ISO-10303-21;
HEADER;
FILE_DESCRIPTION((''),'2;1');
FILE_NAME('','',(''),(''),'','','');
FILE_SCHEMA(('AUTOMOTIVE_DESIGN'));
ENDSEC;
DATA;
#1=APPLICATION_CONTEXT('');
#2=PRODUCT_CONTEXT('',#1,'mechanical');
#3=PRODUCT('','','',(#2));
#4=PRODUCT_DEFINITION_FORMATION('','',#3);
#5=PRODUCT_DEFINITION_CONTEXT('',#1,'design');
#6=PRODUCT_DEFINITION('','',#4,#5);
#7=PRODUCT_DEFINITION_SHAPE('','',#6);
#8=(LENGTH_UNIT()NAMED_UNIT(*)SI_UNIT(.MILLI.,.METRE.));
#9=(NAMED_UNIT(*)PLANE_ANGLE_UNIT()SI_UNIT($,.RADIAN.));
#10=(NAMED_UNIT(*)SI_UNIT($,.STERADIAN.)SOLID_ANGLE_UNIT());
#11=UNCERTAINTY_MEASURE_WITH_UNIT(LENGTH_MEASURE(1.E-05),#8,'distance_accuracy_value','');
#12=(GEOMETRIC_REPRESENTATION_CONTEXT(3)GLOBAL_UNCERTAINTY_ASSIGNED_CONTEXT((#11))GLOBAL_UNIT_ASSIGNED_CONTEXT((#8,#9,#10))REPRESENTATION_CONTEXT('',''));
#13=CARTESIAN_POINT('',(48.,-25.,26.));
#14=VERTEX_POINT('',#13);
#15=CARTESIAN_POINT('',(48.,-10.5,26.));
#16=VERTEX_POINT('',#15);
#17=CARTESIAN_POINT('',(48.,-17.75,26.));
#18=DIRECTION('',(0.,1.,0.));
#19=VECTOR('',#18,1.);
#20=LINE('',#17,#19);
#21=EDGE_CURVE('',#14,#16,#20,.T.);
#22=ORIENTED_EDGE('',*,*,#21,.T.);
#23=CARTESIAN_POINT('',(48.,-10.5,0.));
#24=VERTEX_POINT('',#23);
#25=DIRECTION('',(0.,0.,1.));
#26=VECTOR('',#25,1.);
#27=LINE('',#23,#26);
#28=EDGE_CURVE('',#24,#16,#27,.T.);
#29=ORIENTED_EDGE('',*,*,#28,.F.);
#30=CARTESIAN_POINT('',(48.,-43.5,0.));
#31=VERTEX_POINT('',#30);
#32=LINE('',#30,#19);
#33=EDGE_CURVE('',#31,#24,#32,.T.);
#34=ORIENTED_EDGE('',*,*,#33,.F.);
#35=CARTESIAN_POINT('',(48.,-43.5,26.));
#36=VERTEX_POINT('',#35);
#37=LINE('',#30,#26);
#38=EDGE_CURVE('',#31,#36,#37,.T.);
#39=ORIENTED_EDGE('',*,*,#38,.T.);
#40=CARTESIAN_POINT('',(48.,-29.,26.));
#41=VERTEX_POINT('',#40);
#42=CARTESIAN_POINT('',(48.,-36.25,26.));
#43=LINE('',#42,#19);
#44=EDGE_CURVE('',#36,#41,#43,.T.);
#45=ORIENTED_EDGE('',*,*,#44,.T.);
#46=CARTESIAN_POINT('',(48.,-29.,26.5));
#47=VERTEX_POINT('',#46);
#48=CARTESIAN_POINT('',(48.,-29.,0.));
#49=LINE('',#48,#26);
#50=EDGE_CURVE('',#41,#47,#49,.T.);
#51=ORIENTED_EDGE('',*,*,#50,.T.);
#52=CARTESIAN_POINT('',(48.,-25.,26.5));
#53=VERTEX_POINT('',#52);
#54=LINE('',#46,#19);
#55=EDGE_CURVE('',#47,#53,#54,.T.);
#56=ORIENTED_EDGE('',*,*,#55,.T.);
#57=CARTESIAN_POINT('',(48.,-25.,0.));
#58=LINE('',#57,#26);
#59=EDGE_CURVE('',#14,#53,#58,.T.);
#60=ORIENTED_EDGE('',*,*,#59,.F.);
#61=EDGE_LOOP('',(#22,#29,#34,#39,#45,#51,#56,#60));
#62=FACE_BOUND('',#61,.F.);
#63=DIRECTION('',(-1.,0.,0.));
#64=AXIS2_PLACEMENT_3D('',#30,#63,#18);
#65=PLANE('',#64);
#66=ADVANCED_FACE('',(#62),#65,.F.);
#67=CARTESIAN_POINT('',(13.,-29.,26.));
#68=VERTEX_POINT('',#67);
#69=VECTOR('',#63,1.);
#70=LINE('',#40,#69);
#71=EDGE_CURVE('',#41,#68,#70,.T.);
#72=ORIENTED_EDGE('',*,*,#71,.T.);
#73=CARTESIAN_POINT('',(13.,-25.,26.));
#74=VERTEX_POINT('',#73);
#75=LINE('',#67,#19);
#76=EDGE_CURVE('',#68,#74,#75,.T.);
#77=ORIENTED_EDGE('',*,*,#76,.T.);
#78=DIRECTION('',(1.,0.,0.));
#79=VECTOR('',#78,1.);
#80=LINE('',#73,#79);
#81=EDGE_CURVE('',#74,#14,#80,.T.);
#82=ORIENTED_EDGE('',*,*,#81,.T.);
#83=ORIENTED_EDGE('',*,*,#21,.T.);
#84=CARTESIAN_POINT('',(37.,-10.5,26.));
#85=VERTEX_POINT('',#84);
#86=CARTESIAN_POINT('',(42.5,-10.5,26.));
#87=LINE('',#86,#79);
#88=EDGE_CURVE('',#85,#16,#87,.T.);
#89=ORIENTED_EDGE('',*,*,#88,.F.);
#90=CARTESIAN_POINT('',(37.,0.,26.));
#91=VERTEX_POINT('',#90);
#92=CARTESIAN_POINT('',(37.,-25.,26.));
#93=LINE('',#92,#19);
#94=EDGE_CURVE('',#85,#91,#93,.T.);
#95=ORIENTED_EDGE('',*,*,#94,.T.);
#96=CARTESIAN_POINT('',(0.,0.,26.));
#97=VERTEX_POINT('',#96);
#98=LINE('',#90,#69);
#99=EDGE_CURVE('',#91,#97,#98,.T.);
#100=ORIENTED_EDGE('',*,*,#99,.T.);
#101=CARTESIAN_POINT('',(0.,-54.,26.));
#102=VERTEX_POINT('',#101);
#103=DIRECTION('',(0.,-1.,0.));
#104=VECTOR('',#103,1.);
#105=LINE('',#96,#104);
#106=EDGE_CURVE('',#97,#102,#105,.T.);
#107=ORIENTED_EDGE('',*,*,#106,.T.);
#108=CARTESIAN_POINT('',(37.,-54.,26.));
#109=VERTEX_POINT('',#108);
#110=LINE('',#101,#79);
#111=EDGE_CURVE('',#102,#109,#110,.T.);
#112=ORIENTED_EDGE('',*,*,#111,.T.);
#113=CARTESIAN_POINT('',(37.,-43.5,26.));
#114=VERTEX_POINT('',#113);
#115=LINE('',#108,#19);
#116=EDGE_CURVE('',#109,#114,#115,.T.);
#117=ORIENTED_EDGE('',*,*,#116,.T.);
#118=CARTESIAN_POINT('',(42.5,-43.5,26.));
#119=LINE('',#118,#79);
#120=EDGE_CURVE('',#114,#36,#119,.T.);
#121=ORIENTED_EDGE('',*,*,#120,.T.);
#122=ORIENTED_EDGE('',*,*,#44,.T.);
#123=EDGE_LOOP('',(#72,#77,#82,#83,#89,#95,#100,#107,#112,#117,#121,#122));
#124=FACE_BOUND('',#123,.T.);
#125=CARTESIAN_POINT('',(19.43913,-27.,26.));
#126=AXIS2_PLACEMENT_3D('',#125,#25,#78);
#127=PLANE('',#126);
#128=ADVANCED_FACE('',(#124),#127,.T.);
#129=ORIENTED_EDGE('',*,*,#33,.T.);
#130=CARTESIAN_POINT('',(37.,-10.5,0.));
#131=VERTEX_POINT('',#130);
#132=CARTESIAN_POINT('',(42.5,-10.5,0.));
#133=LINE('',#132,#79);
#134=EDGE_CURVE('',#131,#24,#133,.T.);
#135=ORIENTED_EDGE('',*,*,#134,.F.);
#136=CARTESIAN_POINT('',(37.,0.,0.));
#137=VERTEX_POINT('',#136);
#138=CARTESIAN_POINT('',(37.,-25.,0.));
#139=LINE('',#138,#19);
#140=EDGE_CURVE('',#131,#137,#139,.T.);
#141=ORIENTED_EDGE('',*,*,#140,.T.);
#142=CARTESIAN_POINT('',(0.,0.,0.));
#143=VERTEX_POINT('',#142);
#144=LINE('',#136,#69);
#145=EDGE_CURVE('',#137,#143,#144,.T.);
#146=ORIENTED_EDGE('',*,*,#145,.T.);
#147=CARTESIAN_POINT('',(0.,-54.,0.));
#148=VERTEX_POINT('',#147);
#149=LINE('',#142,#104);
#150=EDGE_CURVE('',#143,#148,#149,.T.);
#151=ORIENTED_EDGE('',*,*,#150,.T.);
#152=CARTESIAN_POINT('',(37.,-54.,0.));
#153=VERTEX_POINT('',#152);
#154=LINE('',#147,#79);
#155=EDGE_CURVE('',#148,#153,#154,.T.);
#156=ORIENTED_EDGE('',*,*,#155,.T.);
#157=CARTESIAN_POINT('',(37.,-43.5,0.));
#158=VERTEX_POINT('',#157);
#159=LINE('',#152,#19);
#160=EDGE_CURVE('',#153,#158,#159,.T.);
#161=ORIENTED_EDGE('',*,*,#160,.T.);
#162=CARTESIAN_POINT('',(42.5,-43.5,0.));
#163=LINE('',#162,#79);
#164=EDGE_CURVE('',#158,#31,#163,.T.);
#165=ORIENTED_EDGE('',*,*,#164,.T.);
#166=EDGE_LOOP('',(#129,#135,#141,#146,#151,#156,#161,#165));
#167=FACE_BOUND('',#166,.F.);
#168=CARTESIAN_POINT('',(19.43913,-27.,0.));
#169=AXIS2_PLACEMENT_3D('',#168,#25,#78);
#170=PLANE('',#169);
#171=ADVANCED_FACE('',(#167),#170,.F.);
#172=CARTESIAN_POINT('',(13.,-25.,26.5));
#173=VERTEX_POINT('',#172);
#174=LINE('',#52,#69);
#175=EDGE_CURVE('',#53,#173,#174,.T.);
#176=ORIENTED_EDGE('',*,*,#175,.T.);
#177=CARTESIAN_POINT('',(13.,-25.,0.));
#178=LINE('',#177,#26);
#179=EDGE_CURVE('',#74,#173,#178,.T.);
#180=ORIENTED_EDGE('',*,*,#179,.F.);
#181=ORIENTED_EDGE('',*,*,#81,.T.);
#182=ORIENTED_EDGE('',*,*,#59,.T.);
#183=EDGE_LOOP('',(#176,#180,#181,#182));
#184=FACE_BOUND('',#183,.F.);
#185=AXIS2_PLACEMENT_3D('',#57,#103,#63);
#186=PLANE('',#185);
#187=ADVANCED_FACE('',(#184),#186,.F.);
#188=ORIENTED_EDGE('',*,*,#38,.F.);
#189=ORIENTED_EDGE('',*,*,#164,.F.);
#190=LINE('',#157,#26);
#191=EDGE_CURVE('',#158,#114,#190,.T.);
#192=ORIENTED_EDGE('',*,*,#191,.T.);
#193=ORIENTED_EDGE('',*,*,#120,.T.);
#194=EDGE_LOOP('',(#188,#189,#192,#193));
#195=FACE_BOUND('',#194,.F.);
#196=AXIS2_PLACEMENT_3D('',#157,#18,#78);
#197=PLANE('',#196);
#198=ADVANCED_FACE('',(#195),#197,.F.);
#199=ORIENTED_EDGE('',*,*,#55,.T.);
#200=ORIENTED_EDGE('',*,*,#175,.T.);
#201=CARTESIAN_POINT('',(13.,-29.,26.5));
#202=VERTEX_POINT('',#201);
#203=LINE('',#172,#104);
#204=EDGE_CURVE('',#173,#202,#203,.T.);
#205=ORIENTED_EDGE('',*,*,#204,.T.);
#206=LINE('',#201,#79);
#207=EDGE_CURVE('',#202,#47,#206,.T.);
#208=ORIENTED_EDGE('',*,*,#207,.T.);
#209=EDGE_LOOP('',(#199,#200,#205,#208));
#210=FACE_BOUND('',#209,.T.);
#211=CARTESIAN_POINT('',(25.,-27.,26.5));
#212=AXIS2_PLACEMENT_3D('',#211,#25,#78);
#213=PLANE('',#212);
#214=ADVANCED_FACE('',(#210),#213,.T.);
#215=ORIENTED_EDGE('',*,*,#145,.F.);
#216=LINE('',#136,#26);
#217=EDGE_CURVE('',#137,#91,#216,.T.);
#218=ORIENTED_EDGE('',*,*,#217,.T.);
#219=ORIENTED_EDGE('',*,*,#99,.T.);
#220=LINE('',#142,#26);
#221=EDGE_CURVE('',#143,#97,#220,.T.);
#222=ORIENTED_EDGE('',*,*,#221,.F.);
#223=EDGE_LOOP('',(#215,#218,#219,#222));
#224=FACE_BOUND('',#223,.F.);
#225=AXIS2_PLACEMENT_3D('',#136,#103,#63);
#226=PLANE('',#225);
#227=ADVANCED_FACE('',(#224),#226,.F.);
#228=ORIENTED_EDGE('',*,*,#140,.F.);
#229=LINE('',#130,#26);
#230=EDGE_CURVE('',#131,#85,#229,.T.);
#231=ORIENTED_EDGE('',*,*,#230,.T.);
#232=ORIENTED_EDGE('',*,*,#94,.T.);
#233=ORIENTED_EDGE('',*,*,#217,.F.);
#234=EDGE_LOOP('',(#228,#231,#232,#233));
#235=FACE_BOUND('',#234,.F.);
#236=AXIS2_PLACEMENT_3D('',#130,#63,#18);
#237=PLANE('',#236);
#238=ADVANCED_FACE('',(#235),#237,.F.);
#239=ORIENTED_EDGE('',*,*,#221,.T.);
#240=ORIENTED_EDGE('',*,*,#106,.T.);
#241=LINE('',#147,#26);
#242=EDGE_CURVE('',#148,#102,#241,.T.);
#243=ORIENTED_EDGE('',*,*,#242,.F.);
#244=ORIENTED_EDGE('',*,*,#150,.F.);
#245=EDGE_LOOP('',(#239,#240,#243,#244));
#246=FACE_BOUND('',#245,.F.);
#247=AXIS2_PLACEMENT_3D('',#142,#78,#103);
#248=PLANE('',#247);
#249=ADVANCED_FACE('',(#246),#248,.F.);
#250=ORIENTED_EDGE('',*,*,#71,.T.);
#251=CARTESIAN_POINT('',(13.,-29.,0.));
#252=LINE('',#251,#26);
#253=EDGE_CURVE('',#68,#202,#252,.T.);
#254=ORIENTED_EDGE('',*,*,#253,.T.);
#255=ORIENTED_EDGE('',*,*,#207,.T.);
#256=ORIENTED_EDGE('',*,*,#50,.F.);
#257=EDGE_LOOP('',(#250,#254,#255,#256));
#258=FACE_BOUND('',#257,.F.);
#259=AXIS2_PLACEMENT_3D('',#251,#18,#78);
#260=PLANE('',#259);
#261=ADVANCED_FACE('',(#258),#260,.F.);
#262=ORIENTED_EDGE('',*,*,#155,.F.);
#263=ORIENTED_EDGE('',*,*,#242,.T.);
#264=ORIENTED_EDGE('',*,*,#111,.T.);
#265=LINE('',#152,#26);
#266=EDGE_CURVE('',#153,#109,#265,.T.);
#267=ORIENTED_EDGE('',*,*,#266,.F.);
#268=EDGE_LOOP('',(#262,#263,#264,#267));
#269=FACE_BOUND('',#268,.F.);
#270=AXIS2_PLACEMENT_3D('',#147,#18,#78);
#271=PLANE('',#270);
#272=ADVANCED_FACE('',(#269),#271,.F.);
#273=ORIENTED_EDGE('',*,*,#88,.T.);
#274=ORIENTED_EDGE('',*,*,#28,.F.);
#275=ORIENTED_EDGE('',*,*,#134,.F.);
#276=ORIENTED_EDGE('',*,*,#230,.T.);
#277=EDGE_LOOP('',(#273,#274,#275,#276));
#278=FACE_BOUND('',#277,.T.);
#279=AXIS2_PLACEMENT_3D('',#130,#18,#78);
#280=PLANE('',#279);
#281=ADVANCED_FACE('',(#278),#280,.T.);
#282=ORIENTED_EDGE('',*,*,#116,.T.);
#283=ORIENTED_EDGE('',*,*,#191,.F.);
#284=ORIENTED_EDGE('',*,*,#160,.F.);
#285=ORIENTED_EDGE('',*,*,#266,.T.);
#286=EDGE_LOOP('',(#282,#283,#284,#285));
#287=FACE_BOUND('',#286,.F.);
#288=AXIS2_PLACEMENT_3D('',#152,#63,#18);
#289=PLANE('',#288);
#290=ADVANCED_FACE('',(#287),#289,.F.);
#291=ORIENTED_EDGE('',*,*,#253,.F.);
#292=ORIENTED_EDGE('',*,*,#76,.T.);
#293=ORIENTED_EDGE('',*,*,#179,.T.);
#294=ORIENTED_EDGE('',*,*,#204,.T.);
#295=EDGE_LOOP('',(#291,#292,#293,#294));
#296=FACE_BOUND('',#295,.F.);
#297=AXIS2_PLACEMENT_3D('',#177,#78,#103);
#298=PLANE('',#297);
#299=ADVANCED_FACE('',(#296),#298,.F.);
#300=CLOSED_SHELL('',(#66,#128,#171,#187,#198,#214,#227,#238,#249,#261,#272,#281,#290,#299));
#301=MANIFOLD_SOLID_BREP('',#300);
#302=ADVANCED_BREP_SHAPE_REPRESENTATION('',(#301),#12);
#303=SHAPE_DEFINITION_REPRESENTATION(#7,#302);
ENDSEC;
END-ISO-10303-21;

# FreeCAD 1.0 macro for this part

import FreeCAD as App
import Part
import Sketcher

doc = App.newDocument("Part")
body = doc.addObject("PartDesign::Body", "Body")

# Sketch on XY plane
sketch1 = body.newObject("Sketcher::SketchObject", "Sketch")
sketch1.AttachmentSupport = (doc.getObject("XY_Plane"), [""])
sketch1.MapMode = "FlatFace"
sketch1.addGeometry(Part.LineSegment(App.Vector(37, 0, 0), App.Vector(0, 0, 0)), False)
sketch1.addGeometry(Part.LineSegment(App.Vector(0, 0, 0), App.Vector(0, -54, 0)), False)
sketch1.addGeometry(Part.LineSegment(App.Vector(0, -54, 0), App.Vector(37, -54, 0)), False)
sketch1.addGeometry(Part.LineSegment(App.Vector(37, -54, 0), App.Vector(37, -43.5, 0)), False)
sketch1.addGeometry(Part.LineSegment(App.Vector(37, -43.5, 0), App.Vector(48, -43.5, 0)), False)
sketch1.addGeometry(Part.LineSegment(App.Vector(48, -43.5, 0), App.Vector(48, -29, 0)), False)
sketch1.addGeometry(Part.LineSegment(App.Vector(48, -29, 0), App.Vector(13, -29, 0)), False)
sketch1.addGeometry(Part.LineSegment(App.Vector(13, -29, 0), App.Vector(13, -25, 0)), False)
sketch1.addGeometry(Part.LineSegment(App.Vector(13, -25, 0), App.Vector(48, -25, 0)), False)
sketch1.addGeometry(Part.LineSegment(App.Vector(48, -25, 0), App.Vector(48, -10.5, 0)), False)
sketch1.addGeometry(Part.LineSegment(App.Vector(48, -10.5, 0), App.Vector(37, -10.5, 0)), False)
sketch1.addGeometry(Part.LineSegment(App.Vector(37, -10.5, 0), App.Vector(37, 0, 0)), False)
sketch1.addConstraint(Sketcher.Constraint("Coincident", 0, 2, 1, 1))
sketch1.addConstraint(Sketcher.Constraint("Coincident", 1, 2, 2, 1))
sketch1.addConstraint(Sketcher.Constraint("Coincident", 2, 2, 3, 1))
sketch1.addConstraint(Sketcher.Constraint("Coincident", 3, 2, 4, 1))
sketch1.addConstraint(Sketcher.Constraint("Coincident", 4, 2, 5, 1))
sketch1.addConstraint(Sketcher.Constraint("Coincident", 5, 2, 6, 1))
sketch1.addConstraint(Sketcher.Constraint("Coincident", 6, 2, 7, 1))
sketch1.addConstraint(Sketcher.Constraint("Coincident", 7, 2, 8, 1))
sketch1.addConstraint(Sketcher.Constraint("Coincident", 8, 2, 9, 1))
sketch1.addConstraint(Sketcher.Constraint("Coincident", 9, 2, 10, 1))
sketch1.addConstraint(Sketcher.Constraint("Coincident", 10, 2, 11, 1))
sketch1.addConstraint(Sketcher.Constraint("Coincident", 11, 2, 0, 1))
sketch1.addConstraint(Sketcher.Constraint("Horizontal", 0))
sketch1.addConstraint(Sketcher.Constraint("Vertical", 1))
sketch1.addConstraint(Sketcher.Constraint("Horizontal", 2))
sketch1.addConstraint(Sketcher.Constraint("Vertical", 3))
sketch1.addConstraint(Sketcher.Constraint("Horizontal", 4))
sketch1.addConstraint(Sketcher.Constraint("Vertical", 5))
sketch1.addConstraint(Sketcher.Constraint("Horizontal", 6))
sketch1.addConstraint(Sketcher.Constraint("Vertical", 7))
sketch1.addConstraint(Sketcher.Constraint("Horizontal", 8))
sketch1.addConstraint(Sketcher.Constraint("Vertical", 9))
sketch1.addConstraint(Sketcher.Constraint("Horizontal", 10))
sketch1.addConstraint(Sketcher.Constraint("Vertical", 11))
sketch1.addConstraint(Sketcher.Constraint("Coincident", 0, 2, -1, 1))
sketch1.addConstraint(Sketcher.Constraint("Vertical", 5, 2, 8, 2))
sketch1.addConstraint(Sketcher.Constraint("Vertical", 3, 2, 10, 2))
sketch1.addConstraint(Sketcher.Constraint("Equal", 5, 9))
sketch1.addConstraint(Sketcher.Constraint("Equal", 3, 11))
sketch1.addConstraint(Sketcher.Constraint("DistanceX", 0, 2, 0, 1, 37.0))
sketch1.addConstraint(Sketcher.Constraint("DistanceX", 4, 1, 4, 2, 11.0))
sketch1.addConstraint(Sketcher.Constraint("DistanceX", 6, 2, 6, 1, 35.0))
sketch1.addConstraint(Sketcher.Constraint("DistanceY", 1, 2, 1, 1, 54.0))
sketch1.addConstraint(Sketcher.Constraint("DistanceY", 7, 1, 7, 2, 4.0))
sketch1.addConstraint(Sketcher.Constraint("DistanceY", 3, 1, 3, 2, 10.5))
pad1 = body.newObject("PartDesign::Pad", "Pad")
pad1.Profile = sketch1
pad1.Length = 26

# Sketch on XY plane
sketch2 = body.newObject("Sketcher::SketchObject", "Sketch001")
sketch2.AttachmentSupport = (doc.getObject("XY_Plane"), [""])
sketch2.MapMode = "FlatFace"
sketch2.addGeometry(Part.LineSegment(App.Vector(13, -25, 0), App.Vector(13, -29, 0)), False)
sketch2.addGeometry(Part.LineSegment(App.Vector(13, -29, 0), App.Vector(48, -29, 0)), False)
sketch2.addGeometry(Part.LineSegment(App.Vector(48, -29, 0), App.Vector(48, -25, 0)), False)
sketch2.addGeometry(Part.LineSegment(App.Vector(48, -25, 0), App.Vector(13, -25, 0)), False)
sketch2.addConstraint(Sketcher.Constraint("Coincident", 0, 2, 1, 1))
sketch2.addConstraint(Sketcher.Constraint("Coincident", 1, 2, 2, 1))
sketch2.addConstraint(Sketcher.Constraint("Coincident", 2, 2, 3, 1))
sketch2.addConstraint(Sketcher.Constraint("Coincident", 3, 2, 0, 1))
sketch2.addConstraint(Sketcher.Constraint("Vertical", 0))
sketch2.addConstraint(Sketcher.Constraint("Horizontal", 1))
sketch2.addConstraint(Sketcher.Constraint("Vertical", 2))
sketch2.addConstraint(Sketcher.Constraint("Horizontal", 3))
sketch2.addConstraint(Sketcher.Constraint("DistanceX", 1, 1, 1, 2, 35.0))
sketch2.addConstraint(Sketcher.Constraint("DistanceY", 0, 2, 0, 1, 4.0))
sketch2.addConstraint(Sketcher.Constraint("DistanceX", -1, 1, 0, 2, 13.0))
sketch2.addConstraint(Sketcher.Constraint("DistanceY", 0, 2, -1, 1, 29.0))
pad2 = body.newObject("PartDesign::Pad", "Pad001")
pad2.Profile = sketch2
pad2.Length = 26.5

doc.recompute()
